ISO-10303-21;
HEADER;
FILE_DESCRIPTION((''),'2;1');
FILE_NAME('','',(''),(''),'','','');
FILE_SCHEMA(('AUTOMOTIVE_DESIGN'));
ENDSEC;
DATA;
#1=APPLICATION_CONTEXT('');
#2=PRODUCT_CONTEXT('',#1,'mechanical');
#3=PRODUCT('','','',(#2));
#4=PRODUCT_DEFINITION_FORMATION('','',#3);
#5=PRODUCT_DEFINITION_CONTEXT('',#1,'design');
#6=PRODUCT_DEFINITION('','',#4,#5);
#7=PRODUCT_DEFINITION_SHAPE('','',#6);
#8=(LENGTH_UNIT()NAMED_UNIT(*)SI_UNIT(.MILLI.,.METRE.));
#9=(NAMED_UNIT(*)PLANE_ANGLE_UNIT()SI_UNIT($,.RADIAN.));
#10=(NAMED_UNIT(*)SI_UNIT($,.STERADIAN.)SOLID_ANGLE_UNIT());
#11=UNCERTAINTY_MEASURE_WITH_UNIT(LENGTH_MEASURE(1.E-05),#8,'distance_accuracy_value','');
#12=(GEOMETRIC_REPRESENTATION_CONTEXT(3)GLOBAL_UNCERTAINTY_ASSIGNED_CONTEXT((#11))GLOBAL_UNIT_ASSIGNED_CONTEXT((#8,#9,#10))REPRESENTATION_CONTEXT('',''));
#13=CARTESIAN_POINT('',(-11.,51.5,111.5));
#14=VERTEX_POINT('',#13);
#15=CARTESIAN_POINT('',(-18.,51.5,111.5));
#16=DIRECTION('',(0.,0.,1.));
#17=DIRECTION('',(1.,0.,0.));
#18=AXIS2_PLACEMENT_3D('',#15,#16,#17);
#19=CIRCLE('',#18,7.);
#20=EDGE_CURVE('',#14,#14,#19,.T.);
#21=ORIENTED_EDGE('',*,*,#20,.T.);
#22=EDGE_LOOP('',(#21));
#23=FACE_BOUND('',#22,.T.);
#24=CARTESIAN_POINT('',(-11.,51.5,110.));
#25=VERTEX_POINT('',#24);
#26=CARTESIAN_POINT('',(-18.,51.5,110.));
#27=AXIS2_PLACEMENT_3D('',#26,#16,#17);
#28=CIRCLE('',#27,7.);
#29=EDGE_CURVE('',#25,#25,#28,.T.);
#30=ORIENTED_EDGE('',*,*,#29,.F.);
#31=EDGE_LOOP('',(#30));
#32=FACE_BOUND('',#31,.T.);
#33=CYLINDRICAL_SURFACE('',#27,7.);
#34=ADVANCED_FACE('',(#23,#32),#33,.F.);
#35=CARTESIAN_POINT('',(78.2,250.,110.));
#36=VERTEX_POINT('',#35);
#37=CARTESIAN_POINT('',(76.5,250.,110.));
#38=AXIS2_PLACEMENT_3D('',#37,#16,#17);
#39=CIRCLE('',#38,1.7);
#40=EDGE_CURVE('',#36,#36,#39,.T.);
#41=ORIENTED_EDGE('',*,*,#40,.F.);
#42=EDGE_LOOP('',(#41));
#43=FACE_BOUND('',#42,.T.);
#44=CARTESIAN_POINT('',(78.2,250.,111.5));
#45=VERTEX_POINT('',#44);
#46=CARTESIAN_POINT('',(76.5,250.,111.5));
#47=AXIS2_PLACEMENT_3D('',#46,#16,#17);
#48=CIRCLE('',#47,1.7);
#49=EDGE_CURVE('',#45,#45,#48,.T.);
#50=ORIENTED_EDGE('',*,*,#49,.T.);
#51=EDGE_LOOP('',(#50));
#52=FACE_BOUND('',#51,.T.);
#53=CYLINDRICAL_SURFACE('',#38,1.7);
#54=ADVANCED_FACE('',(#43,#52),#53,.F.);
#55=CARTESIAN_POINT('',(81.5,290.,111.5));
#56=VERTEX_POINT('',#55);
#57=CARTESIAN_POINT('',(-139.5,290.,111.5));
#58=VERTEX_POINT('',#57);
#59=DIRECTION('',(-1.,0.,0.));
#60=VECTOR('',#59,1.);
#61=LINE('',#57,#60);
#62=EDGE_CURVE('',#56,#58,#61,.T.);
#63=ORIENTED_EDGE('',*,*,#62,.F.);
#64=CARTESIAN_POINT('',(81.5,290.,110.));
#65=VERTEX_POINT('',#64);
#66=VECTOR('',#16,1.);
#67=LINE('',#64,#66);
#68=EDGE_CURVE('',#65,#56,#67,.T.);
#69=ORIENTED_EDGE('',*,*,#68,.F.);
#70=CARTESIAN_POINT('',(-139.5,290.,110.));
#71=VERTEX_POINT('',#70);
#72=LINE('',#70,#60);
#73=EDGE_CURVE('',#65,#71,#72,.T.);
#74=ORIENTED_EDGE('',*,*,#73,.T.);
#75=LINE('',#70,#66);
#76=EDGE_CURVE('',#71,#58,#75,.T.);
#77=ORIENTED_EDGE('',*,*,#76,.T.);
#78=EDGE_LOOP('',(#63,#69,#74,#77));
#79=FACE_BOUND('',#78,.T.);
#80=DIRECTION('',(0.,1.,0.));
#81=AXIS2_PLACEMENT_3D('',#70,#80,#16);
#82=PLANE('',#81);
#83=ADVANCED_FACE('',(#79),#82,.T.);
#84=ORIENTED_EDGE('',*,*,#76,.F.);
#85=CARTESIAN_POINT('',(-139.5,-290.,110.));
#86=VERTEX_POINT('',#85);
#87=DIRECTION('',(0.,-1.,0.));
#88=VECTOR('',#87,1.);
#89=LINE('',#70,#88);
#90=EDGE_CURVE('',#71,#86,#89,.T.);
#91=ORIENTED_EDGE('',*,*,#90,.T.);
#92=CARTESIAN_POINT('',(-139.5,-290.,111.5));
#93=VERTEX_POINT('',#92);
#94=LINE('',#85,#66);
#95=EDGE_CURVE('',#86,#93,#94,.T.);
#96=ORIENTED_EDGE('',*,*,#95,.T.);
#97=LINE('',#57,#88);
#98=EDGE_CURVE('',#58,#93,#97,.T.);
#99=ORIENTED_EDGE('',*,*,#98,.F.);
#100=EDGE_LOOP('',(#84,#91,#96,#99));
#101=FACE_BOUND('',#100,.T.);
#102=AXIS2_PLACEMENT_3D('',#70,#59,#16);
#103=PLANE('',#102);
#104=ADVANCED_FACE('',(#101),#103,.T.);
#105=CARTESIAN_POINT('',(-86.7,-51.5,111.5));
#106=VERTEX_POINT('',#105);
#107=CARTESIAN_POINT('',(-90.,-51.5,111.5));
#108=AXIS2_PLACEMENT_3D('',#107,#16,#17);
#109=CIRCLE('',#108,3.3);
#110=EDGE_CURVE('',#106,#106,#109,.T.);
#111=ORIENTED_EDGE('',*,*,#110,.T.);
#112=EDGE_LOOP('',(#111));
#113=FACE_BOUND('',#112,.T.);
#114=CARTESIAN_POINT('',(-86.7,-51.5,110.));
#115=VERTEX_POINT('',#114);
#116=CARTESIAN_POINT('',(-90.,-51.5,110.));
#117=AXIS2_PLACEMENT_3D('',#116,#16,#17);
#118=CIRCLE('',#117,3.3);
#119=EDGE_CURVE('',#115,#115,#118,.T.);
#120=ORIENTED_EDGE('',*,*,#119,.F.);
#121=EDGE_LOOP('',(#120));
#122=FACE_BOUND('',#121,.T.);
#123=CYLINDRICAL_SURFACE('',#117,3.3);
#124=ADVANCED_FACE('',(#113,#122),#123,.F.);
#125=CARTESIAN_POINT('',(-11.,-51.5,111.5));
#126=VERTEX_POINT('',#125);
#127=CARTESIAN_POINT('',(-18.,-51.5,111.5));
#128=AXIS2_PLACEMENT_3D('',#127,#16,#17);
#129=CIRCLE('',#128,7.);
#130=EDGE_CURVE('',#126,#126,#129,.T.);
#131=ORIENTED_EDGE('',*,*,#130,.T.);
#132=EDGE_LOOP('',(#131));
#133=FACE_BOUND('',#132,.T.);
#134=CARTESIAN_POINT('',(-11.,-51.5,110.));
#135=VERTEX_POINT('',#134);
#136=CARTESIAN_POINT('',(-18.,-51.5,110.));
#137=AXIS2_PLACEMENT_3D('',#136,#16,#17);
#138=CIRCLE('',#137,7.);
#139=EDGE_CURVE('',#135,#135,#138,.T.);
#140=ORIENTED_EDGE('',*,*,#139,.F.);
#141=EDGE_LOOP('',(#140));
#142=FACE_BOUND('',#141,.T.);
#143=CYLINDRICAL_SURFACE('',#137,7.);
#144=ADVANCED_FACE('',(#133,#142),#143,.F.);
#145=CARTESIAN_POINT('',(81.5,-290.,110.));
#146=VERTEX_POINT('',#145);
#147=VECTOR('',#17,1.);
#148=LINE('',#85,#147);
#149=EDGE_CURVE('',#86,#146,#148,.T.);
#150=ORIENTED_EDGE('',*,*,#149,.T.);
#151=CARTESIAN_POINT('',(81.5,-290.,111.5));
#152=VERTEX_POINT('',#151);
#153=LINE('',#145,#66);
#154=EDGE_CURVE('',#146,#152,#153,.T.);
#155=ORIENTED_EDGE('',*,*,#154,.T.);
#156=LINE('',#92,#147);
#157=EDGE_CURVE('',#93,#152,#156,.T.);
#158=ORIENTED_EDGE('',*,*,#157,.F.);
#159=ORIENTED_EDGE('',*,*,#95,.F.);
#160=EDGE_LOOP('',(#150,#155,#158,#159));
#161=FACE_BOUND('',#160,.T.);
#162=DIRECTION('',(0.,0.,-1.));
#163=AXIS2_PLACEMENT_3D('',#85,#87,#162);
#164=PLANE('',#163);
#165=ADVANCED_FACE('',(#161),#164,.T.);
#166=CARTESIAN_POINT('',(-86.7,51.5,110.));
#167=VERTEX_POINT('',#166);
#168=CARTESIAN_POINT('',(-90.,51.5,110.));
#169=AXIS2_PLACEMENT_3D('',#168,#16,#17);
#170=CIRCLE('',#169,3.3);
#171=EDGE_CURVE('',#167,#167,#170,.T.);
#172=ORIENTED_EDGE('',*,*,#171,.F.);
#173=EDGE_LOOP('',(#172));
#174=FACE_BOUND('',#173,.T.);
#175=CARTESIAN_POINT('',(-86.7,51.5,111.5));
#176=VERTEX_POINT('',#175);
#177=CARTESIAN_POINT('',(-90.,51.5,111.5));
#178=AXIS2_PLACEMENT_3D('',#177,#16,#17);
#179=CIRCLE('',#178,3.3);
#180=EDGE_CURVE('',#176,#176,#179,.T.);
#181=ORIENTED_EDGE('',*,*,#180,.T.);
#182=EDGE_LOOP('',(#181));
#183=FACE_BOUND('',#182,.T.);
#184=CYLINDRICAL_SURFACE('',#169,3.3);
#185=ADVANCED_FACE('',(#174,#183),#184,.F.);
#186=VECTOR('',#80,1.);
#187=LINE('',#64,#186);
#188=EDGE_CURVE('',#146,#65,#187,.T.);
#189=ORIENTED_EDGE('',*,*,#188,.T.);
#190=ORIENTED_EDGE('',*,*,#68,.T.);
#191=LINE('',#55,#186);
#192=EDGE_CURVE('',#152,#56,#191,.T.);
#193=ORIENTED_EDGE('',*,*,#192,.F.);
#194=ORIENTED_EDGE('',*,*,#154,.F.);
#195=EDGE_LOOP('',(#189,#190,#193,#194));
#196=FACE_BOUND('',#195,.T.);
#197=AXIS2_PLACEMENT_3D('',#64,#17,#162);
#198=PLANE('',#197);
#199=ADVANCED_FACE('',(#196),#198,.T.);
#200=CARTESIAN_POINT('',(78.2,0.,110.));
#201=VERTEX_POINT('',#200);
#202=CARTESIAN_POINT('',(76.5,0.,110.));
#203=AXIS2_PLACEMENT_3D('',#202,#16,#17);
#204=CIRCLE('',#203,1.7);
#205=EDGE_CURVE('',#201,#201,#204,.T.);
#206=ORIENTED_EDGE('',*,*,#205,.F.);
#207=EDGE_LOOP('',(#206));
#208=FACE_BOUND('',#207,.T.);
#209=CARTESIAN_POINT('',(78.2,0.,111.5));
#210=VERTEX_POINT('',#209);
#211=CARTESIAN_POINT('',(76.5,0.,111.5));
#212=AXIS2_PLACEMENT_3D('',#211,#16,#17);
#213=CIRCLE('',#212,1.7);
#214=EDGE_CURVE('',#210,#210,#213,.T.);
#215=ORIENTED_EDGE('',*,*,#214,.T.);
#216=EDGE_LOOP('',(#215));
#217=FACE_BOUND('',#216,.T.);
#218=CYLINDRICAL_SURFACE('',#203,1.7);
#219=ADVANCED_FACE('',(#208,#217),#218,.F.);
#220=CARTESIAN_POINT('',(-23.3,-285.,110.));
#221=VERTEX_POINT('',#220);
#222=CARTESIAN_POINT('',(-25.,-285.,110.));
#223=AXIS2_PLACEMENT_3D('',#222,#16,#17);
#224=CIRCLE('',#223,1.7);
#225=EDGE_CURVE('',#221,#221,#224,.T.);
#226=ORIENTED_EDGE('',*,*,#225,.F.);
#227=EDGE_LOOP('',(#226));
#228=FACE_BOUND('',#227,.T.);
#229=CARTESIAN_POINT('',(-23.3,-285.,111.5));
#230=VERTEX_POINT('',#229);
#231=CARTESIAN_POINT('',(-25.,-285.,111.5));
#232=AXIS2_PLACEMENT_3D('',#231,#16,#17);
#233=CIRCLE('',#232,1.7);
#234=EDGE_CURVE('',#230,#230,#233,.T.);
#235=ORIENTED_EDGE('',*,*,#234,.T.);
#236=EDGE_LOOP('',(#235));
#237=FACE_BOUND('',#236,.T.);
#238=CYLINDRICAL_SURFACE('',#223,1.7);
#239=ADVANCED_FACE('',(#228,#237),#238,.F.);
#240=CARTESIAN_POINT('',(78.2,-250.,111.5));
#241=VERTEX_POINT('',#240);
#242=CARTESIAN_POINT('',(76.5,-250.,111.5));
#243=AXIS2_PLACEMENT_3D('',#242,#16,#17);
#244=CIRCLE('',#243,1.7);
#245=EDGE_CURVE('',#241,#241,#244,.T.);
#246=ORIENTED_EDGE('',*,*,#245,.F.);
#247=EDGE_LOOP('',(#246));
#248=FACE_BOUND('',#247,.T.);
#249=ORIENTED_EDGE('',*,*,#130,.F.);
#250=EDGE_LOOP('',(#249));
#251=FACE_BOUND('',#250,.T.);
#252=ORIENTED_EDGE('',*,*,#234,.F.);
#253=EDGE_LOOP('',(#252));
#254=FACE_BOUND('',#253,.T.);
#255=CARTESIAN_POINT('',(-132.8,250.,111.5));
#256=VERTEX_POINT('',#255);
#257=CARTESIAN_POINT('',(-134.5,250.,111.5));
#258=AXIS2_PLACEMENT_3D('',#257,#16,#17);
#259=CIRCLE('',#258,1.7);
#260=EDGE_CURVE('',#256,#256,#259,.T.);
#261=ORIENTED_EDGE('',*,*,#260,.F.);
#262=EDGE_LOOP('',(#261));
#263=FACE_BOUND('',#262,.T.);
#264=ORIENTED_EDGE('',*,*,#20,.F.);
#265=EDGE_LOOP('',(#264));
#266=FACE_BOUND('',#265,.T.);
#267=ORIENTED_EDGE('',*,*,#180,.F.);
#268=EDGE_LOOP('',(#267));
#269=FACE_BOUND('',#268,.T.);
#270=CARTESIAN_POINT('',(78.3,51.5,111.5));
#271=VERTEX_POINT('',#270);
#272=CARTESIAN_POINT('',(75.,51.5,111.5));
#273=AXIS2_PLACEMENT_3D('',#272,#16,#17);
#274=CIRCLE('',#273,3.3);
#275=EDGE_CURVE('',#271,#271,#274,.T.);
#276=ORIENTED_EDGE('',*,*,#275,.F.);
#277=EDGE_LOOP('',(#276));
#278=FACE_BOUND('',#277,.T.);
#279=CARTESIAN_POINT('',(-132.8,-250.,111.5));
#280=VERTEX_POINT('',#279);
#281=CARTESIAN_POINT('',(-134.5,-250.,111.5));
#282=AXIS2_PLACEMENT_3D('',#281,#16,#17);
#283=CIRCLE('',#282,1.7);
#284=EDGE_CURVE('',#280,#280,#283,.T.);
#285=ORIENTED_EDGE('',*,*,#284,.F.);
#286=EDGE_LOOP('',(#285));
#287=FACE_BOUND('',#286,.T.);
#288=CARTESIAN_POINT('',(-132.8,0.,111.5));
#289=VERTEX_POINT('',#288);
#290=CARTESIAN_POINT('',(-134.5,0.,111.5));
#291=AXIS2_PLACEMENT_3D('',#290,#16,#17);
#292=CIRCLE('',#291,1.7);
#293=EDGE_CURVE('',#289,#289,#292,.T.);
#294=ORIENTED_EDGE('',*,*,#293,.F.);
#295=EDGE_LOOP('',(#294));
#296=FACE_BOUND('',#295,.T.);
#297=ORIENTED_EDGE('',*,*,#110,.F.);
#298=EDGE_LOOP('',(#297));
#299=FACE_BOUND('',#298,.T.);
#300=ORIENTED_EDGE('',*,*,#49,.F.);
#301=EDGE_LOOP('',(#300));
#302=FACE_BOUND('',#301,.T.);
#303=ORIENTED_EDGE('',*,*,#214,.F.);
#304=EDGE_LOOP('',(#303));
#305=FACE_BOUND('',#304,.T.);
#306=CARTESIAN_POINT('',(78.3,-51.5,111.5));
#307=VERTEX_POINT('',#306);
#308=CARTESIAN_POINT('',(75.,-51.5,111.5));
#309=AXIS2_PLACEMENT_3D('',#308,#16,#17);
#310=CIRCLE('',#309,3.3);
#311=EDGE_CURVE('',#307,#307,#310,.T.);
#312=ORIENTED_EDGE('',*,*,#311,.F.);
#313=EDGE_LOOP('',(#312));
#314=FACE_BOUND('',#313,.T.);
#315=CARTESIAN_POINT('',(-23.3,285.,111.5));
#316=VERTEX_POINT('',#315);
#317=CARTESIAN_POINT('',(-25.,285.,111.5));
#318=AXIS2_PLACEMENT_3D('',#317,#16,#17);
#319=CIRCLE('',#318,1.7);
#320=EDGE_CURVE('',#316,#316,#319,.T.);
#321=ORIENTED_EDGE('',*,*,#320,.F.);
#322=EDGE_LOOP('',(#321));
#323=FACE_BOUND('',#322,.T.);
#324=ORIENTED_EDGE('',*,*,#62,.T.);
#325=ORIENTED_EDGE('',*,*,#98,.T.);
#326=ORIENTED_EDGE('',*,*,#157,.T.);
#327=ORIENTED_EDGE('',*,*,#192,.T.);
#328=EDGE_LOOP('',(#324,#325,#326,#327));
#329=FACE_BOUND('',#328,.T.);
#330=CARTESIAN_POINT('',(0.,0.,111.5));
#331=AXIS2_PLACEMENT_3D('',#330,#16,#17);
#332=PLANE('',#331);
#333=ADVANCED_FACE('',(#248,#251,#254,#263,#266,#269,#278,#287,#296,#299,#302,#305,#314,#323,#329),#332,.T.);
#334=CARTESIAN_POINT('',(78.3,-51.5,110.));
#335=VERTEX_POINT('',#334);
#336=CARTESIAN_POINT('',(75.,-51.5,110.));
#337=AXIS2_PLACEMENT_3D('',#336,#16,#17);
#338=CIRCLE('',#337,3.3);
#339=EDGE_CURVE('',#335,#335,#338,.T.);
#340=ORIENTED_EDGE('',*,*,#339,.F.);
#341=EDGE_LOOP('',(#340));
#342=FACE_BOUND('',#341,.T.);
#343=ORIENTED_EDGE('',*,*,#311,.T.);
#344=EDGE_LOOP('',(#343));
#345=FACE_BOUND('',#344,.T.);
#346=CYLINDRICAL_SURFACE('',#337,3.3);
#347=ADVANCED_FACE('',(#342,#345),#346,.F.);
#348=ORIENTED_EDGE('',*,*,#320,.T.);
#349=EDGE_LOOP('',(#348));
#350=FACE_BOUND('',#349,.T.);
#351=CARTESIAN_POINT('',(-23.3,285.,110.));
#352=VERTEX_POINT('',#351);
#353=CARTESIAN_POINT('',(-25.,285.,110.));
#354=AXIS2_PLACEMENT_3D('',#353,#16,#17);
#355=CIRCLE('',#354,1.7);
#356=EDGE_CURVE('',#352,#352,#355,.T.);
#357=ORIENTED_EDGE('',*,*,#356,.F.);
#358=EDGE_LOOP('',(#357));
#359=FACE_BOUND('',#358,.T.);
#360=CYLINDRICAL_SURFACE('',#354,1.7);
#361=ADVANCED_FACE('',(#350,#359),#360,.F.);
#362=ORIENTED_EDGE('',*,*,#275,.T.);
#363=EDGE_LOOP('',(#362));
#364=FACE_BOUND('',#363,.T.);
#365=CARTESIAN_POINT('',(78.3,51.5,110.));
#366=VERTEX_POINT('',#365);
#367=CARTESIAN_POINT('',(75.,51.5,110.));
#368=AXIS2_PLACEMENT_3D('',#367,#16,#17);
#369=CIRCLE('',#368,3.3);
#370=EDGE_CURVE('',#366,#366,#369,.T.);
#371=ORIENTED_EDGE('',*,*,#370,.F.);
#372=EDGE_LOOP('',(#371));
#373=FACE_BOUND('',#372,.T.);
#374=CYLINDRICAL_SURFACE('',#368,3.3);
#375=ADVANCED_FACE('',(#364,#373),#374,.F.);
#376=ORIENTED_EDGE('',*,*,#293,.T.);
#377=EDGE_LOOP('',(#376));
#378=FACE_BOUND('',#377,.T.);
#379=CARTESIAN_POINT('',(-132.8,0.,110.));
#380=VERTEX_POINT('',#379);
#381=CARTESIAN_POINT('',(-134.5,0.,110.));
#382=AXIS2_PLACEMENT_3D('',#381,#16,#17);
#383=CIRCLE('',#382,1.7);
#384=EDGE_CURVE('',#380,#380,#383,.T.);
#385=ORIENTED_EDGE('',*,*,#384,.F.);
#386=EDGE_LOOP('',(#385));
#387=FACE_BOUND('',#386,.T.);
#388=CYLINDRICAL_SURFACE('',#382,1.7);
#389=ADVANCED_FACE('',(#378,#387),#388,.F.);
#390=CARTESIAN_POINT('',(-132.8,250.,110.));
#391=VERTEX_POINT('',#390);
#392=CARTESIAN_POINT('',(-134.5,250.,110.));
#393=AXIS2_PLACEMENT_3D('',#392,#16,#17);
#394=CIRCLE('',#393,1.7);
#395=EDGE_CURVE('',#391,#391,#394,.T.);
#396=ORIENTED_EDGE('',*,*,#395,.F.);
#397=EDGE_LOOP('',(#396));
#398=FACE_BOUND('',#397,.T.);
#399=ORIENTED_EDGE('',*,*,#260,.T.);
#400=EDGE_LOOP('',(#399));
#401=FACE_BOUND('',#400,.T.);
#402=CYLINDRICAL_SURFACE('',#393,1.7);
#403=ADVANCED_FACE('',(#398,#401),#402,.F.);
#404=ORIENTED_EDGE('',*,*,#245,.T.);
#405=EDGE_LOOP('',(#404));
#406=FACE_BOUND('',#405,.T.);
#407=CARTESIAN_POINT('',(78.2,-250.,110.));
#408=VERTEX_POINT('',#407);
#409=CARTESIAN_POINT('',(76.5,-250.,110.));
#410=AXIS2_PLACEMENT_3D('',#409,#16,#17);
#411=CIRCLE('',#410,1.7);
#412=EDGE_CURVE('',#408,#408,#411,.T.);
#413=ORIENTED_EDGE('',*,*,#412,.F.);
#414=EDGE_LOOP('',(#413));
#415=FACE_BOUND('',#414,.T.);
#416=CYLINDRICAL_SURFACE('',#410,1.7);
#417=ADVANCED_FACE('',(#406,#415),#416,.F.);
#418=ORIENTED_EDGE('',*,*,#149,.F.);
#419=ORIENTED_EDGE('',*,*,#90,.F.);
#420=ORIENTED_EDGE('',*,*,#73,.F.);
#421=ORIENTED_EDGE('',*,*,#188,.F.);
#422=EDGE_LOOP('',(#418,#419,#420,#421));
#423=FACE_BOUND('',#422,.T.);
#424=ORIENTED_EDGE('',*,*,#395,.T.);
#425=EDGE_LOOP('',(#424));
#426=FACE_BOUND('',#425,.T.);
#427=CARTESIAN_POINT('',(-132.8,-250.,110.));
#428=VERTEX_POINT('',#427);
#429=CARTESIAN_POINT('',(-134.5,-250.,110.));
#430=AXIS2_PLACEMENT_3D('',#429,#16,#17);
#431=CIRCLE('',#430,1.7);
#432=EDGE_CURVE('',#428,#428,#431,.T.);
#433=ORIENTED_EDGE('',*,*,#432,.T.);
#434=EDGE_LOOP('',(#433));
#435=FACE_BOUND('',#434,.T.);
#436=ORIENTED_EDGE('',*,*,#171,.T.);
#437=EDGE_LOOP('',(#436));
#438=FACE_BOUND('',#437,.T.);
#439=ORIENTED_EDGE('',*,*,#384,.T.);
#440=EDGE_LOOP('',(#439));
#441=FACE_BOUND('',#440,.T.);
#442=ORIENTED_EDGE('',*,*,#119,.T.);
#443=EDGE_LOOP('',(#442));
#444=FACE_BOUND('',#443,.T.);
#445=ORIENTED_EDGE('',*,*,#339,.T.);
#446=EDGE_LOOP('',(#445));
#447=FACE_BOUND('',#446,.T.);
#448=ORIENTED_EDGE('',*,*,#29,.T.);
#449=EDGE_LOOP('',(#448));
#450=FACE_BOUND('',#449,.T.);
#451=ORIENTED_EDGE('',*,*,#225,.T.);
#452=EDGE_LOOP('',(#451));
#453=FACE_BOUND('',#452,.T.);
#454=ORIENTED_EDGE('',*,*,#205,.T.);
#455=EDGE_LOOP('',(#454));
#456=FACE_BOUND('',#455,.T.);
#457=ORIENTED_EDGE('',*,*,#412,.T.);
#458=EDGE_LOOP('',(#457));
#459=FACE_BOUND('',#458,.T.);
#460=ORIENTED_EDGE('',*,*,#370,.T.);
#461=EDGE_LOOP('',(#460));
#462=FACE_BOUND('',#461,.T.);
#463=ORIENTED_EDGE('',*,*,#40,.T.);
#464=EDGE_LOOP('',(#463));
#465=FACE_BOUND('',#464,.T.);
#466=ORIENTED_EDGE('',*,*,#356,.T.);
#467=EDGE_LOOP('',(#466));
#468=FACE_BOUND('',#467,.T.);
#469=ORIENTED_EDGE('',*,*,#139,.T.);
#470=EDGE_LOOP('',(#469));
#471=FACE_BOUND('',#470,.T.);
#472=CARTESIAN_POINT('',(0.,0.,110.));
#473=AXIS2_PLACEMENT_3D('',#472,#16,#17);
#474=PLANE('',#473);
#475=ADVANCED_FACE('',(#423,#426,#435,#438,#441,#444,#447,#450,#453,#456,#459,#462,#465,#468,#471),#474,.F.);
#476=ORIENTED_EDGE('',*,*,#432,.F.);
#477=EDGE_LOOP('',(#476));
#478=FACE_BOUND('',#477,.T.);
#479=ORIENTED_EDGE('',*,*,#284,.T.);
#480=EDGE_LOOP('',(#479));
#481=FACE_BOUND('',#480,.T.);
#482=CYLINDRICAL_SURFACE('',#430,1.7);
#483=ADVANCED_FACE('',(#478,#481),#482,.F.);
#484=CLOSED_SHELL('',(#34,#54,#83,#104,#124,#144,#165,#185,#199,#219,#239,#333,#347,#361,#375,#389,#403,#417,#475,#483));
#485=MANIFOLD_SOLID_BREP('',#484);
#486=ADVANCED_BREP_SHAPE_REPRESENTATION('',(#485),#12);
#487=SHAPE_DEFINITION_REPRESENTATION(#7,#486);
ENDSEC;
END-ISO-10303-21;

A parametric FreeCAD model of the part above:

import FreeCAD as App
import Part
import Sketcher
from FreeCAD import Vector
Q = App.Units.Quantity

doc = App.newDocument("Part")
body = doc.addObject("PartDesign::Body", "Body")

# Sketch on XY plane
sketch1 = body.newObject("Sketcher::SketchObject", "Sketch")
sketch1.AttachmentSupport = (doc.getObject("XY_Plane"), [""])
sketch1.MapMode = "FlatFace"
sketch1.AttachmentOffset = App.Placement(Vector(0, 0, 111.5), App.Rotation())
sketch1.addGeometry([
    Part.LineSegment(Vector(-139.5, 290, 0), Vector(-139.5, -290, 0)),  # 0
    Part.LineSegment(Vector(-139.5, -290, 0), Vector(81.5, -290, 0)),  # 1
    Part.LineSegment(Vector(81.5, -290, 0), Vector(81.5, 290, 0)),  # 2
    Part.LineSegment(Vector(81.5, 290, 0), Vector(-139.5, 290, 0)),  # 3
    Part.Circle(Vector(-134.5, -250, 0), Vector(0, 0, 1), 1.7),  # 4
    Part.Circle(Vector(-90, -51.5, 0), Vector(0, 0, 1), 3.3),  # 5
    Part.Circle(Vector(-25, -285, 0), Vector(0, 0, 1), 1.7),  # 6
    Part.Circle(Vector(76.5, -250, 0), Vector(0, 0, 1), 1.7),  # 7
    Part.Circle(Vector(-18, -51.5, 0), Vector(0, 0, 1), 7),  # 8
    Part.Circle(Vector(75, -51.5, 0), Vector(0, 0, 1), 3.3),  # 9
    Part.Circle(Vector(-134.5, 0, 0), Vector(0, 0, 1), 1.7),  # 10
    Part.Circle(Vector(-90, 51.5, 0), Vector(0, 0, 1), 3.3),  # 11
    Part.Circle(Vector(-134.5, 250, 0), Vector(0, 0, 1), 1.7),  # 12
    Part.Circle(Vector(-18, 51.5, 0), Vector(0, 0, 1), 7),  # 13
    Part.Circle(Vector(76.5, 0, 0), Vector(0, 0, 1), 1.7),  # 14
    Part.Circle(Vector(75, 51.5, 0), Vector(0, 0, 1), 3.3),  # 15
    Part.Circle(Vector(-25, 285, 0), Vector(0, 0, 1), 1.7),  # 16
    Part.Circle(Vector(76.5, 250, 0), Vector(0, 0, 1), 1.7),  # 17
], False)
sketch1.addConstraint([
    Sketcher.Constraint("Coincident", 0, 2, 1, 1),
    Sketcher.Constraint("Coincident", 1, 2, 2, 1),
    Sketcher.Constraint("Coincident", 2, 2, 3, 1),
    Sketcher.Constraint("Coincident", 3, 2, 0, 1),
    Sketcher.Constraint("Vertical", 0),
    Sketcher.Constraint("Horizontal", 1),
    Sketcher.Constraint("Vertical", 2),
    Sketcher.Constraint("Horizontal", 3),
    Sketcher.Constraint("Equal", 4, 6),
    Sketcher.Constraint("Equal", 6, 7),
    Sketcher.Constraint("Equal", 5, 9),
    Sketcher.Constraint("Equal", 7, 10),
    Sketcher.Constraint("Equal", 9, 11),
    Sketcher.Constraint("Equal", 10, 12),
    Sketcher.Constraint("Equal", 8, 13),
    Sketcher.Constraint("Equal", 12, 14),
    Sketcher.Constraint("Equal", 11, 15),
    Sketcher.Constraint("Equal", 14, 16),
    Sketcher.Constraint("Equal", 16, 17),
    Sketcher.Constraint("Symmetric", 5, 3, 11, 3, -1),
    Sketcher.Constraint("Symmetric", 4, 3, 12, 3, -1),
    Sketcher.Constraint("Symmetric", 8, 3, 13, 3, -1),
    Sketcher.Constraint("Symmetric", 9, 3, 15, 3, -1),
    Sketcher.Constraint("Symmetric", 6, 3, 16, 3, -1),
    Sketcher.Constraint("Symmetric", 7, 3, 17, 3, -1),
    Sketcher.Constraint("PointOnObject", 10, 3, -1),
    Sketcher.Constraint("PointOnObject", 14, 3, -1),
    Sketcher.Constraint("Horizontal", 4, 3, 7, 3),
    Sketcher.Constraint("Horizontal", 5, 3, 8, 3),
    Sketcher.Constraint("Horizontal", 8, 3, 9, 3),
    Sketcher.Constraint("Vertical", 4, 3, 10, 3),
    Sketcher.Constraint("Vertical", 7, 3, 14, 3),
    Sketcher.Constraint("Diameter", 8, Q("14 mm")),
    Sketcher.Constraint("Diameter", 4, Q("3.4 mm")),
    Sketcher.Constraint("Diameter", 5, Q("6.6 mm")),
    Sketcher.Constraint("DistanceX", 1, 1, 1, 2, Q("221 mm")),
    Sketcher.Constraint("DistanceY", 0, 2, 0, 1, Q("580 mm")),
    Sketcher.Constraint("DistanceY", 4, 3, -1, 1, Q("250 mm")),
    Sketcher.Constraint("DistanceX", 5, 3, -1, 1, Q("90 mm")),
    Sketcher.Constraint("DistanceX", 6, 3, -1, 1, Q("25 mm")),
    Sketcher.Constraint("DistanceY", 6, 3, -1, 1, Q("285 mm")),
    Sketcher.Constraint("DistanceX", 8, 3, -1, 1, Q("18 mm")),
    Sketcher.Constraint("DistanceX", -1, 1, 9, 3, Q("75 mm")),
    Sketcher.Constraint("DistanceY", 0, 2, -1, 1, Q("290 mm")),
    Sketcher.Constraint("DistanceX", 4, 3, 7, 3, Q("211 mm")),
    Sketcher.Constraint("DistanceY", 5, 3, 11, 3, Q("103 mm")),
    Sketcher.Constraint("DistanceX", 0, 2, 4, 3, Q("5 mm")),
    Sketcher.Constraint("DistanceX", 4, 3, -1, 1, Q("134.5 mm")),
])
pad1 = body.newObject("PartDesign::Pad", "Pad")
pad1.Profile = sketch1
pad1.Length = 1.5
pad1.Reversed = True

doc.recompute()
